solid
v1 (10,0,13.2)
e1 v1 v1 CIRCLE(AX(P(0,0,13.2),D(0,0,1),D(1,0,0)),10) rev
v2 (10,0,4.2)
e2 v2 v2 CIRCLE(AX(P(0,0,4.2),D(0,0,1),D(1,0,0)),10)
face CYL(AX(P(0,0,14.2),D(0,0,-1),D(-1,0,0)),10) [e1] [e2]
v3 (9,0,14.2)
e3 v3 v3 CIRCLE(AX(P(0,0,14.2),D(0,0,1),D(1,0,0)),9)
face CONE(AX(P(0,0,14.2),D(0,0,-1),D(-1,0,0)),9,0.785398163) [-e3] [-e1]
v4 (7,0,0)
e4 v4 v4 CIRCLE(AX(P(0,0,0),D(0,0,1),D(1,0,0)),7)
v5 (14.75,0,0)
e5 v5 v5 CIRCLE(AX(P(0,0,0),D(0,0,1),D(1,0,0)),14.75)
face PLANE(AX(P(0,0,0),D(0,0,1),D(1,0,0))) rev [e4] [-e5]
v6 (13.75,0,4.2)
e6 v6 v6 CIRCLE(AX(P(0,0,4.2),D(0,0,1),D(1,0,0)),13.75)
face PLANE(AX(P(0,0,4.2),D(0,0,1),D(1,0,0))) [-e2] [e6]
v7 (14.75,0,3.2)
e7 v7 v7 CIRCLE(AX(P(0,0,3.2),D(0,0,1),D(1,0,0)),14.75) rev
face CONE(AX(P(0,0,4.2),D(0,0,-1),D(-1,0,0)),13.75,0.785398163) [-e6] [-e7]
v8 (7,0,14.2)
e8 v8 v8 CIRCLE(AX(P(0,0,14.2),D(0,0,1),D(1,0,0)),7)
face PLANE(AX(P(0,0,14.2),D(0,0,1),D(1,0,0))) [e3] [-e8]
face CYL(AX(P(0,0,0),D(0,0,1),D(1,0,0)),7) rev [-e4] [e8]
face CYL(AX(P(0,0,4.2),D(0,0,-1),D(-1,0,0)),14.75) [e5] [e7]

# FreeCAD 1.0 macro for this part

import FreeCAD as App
import Part
import Sketcher
Q = App.Units.Quantity


def edges_at(feature, points):
    """Names of the edges that pass closest to the given points."""
    edges = feature.Shape.Edges
    near = lambda p: min(range(len(edges)), key=lambda i: edges[i].distToShape(Part.Vertex(*p))[0])
    return sorted({f"Edge{near(p) + 1}" for p in points})

doc = App.newDocument("Part")
body = doc.addObject("PartDesign::Body", "Body")

# Sketch on XY plane
sketch1 = body.newObject("Sketcher::SketchObject", "Sketch")
sketch1.AttachmentSupport = (doc.getObject("XY_Plane"), [""])
sketch1.MapMode = "FlatFace"
sketch1.addGeometry(Part.Circle(App.Vector(0, 0, 0), App.Vector(0, 0, 1), 15), False)
sketch1.addConstraint([
    Sketcher.Constraint("Coincident", 0, 3, -1, 1),
    Sketcher.Constraint("Diameter", 0, Q("29.5 mm")),
])
pad1 = body.newObject("PartDesign::Pad", "Pad")
pad1.Profile = sketch1
pad1.Length = 4.2

# Sketch on XY plane
sketch2 = body.newObject("Sketcher::SketchObject", "Sketch001")
sketch2.AttachmentSupport = (doc.getObject("XY_Plane"), [""])
sketch2.MapMode = "FlatFace"
sketch2.AttachmentOffset = App.Placement(App.Vector(0, 0, 4.2), App.Rotation())
sketch2.addGeometry(Part.Circle(App.Vector(0, 0, 0), App.Vector(0, 0, 1), 10), False)
sketch2.addConstraint([
    Sketcher.Constraint("Coincident", 0, 3, -1, 1),
    Sketcher.Constraint("Diameter", 0, Q("20 mm")),
])
pad2 = body.newObject("PartDesign::Pad", "Pad001")
pad2.Profile = sketch2
pad2.Length = 10

# Sketch on XY plane
sketch3 = body.newObject("Sketcher::SketchObject", "Sketch002")
sketch3.AttachmentSupport = (doc.getObject("XY_Plane"), [""])
sketch3.MapMode = "FlatFace"
sketch3.AttachmentOffset = App.Placement(App.Vector(0, 0, 14.2), App.Rotation())
sketch3.addGeometry(Part.Circle(App.Vector(0, 0, 0), App.Vector(0, 0, 1), 7), False)
sketch3.addConstraint([
    Sketcher.Constraint("Coincident", 0, 3, -1, 1),
    Sketcher.Constraint("Diameter", 0, Q("14 mm")),
])
pocket1 = body.newObject("PartDesign::Pocket", "Pocket")
pocket1.Profile = sketch3
pocket1.Type = "ThroughAll"
doc.recompute()

chamfer = body.newObject("PartDesign::Chamfer", "Chamfer")
chamfer.Base = (pocket1, edges_at(pocket1, [(-14.75, 0, 4.2), (-10, 0, 14.2)]))
chamfer.Size = 1

doc.recompute()
